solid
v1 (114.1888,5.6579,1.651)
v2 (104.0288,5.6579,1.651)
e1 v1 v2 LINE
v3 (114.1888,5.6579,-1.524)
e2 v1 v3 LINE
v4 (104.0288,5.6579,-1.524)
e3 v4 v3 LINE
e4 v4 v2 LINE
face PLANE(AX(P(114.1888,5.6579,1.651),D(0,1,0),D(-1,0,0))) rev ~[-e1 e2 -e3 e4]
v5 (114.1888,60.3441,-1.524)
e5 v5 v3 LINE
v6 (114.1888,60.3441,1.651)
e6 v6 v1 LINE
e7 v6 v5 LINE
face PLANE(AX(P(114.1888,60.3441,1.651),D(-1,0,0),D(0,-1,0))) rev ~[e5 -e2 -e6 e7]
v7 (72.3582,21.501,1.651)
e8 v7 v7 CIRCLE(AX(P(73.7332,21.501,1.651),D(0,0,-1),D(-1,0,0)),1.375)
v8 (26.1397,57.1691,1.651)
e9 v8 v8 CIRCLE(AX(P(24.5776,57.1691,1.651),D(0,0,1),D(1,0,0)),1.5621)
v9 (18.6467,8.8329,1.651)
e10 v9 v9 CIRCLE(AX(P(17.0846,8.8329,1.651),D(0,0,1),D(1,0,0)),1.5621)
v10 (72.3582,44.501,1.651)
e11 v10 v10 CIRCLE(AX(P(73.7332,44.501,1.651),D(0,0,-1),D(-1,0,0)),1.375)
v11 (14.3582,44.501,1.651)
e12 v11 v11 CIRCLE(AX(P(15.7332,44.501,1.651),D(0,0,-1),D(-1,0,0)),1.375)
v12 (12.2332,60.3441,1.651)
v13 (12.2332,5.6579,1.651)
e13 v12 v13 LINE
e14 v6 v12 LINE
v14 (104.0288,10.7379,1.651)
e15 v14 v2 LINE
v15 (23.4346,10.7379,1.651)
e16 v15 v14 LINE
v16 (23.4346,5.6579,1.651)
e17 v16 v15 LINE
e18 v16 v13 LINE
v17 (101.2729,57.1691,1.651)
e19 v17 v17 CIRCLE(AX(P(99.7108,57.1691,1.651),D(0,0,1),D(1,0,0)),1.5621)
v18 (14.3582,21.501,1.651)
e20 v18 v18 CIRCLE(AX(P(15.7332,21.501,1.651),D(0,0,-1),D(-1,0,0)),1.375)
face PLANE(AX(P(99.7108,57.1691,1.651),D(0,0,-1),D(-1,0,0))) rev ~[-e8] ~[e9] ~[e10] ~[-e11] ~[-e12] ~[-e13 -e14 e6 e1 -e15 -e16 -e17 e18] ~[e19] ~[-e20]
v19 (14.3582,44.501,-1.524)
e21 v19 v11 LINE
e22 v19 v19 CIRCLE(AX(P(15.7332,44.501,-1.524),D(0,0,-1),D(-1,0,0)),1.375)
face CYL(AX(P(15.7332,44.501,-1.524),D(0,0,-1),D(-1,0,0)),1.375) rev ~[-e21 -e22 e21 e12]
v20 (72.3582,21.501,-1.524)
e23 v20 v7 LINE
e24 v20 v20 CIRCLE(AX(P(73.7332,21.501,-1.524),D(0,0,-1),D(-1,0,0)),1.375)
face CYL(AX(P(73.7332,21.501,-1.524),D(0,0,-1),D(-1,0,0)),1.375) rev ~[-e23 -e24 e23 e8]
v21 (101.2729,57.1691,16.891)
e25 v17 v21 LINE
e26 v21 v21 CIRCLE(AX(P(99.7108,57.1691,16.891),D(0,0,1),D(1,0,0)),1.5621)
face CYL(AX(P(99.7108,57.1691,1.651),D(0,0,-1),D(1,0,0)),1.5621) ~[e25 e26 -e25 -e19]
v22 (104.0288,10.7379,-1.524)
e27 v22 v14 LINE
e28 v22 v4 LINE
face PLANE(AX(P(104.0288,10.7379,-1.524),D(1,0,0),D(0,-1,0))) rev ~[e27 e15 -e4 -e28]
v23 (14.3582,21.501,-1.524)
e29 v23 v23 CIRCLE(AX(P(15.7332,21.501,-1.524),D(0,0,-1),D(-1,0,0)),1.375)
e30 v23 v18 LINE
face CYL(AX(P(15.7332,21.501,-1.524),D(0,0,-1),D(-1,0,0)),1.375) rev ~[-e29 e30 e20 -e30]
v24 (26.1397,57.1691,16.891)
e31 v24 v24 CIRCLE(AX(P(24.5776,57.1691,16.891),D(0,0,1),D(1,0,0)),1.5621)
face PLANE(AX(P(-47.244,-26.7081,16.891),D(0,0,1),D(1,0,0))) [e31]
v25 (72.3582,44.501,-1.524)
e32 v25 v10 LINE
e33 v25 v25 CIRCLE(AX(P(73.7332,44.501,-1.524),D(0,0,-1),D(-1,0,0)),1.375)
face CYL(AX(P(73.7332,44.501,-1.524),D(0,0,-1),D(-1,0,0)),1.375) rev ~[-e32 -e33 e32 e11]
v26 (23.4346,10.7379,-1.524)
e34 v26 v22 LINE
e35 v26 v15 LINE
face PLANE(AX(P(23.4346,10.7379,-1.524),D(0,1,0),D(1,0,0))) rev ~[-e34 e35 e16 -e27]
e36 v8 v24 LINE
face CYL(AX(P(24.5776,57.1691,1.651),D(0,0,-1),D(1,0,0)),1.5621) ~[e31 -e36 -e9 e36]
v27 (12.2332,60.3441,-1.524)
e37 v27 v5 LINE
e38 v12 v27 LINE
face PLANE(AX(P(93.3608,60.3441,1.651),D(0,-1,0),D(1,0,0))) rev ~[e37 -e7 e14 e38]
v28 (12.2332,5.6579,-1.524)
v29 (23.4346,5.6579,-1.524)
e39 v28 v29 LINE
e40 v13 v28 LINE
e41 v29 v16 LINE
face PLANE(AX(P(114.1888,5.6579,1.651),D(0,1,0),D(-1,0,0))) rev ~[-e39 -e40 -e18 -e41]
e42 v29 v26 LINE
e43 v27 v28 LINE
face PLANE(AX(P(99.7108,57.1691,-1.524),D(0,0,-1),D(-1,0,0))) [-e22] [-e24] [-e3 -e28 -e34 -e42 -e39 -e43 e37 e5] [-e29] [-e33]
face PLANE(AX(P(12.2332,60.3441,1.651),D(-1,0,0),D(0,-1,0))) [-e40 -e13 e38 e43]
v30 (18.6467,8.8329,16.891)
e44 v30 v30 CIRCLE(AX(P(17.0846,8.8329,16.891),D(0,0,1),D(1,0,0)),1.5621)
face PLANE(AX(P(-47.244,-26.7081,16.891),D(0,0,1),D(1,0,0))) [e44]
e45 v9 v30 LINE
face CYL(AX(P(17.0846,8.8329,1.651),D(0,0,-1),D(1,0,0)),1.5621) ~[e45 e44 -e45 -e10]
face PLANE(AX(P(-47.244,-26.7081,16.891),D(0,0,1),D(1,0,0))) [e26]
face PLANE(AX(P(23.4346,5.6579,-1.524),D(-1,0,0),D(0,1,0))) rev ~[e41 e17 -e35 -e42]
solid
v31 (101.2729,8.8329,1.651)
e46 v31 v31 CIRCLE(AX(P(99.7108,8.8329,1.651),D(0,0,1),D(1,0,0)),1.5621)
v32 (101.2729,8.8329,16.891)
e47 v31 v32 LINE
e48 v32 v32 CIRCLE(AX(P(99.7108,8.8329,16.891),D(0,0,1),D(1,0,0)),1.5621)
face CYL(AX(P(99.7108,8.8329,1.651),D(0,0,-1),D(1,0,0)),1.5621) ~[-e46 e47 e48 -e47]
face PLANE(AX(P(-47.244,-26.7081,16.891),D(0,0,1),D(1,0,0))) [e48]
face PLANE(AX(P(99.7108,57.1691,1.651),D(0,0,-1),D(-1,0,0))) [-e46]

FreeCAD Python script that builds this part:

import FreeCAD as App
import Part
import Sketcher

V = App.Vector
Q = App.Units.Quantity

doc = App.newDocument("Part")
body = doc.addObject("PartDesign::Body", "Body")
body.AllowCompound = True

# Sketch on XY plane
sketch1 = doc.addObject("Sketcher::SketchObject", "Sketch")
body.addObject(sketch1)
sketch1.AttachmentSupport = (doc.XY_Plane, [""])
sketch1.MapMode = "FlatFace"
sketch1.AttachmentOffset = App.Placement(V(0, 0, 0.065 * 25.4), App.Rotation())
sketch1.addGeometry(Part.Circle(V(24.5776, 57.1691, 0), V(0, 0, 1), 1.5621), False)
sketch1.addGeometry(Part.Circle(V(17.0846, 8.8329, 0), V(0, 0, 1), 1.5621), False)
sketch1.addGeometry(Part.Circle(V(99.7108, 8.8329, 0), V(0, 0, 1), 1.5621), False)
sketch1.addGeometry(Part.Circle(V(99.7108, 57.1691, 0), V(0, 0, 1), 1.5621), False)
sketch1.addConstraint(Sketcher.Constraint("Equal", 0, 1))
sketch1.addConstraint(Sketcher.Constraint("Equal", 1, 2))
sketch1.addConstraint(Sketcher.Constraint("Equal", 2, 3))
sketch1.addConstraint(Sketcher.Constraint("Horizontal", 1, 3, 2, 3))
sketch1.addConstraint(Sketcher.Constraint("Horizontal", 0, 3, 3, 3))
sketch1.addConstraint(Sketcher.Constraint("Vertical", 2, 3, 3, 3))
sketch1.addConstraint(Sketcher.Constraint("Diameter", 0, Q("0.123 in")))
sketch1.addConstraint(Sketcher.Constraint("DistanceY", 1, 3, 0, 3, Q("1.903 in")))
sketch1.addConstraint(Sketcher.Constraint("DistanceX", 1, 3, 2, 3, Q("3.253 in")))
sketch1.addConstraint(Sketcher.Constraint("DistanceX", 0, 3, 2, 3, Q("2.958 in")))
sketch1.addConstraint(Sketcher.Constraint("DistanceX", -1, 1, 0, 3, 24.5776))
sketch1.addConstraint(Sketcher.Constraint("DistanceY", -1, 1, 0, 3, 57.169))
pad1 = doc.addObject("PartDesign::Pad", "Pad")
body.addObject(pad1)
pad1.Profile = sketch1
pad1.Length = Q("0.6 in")

# Sketch on XY plane
sketch2 = doc.addObject("Sketcher::SketchObject", "Sketch001")
body.addObject(sketch2)
sketch2.AttachmentSupport = (doc.XY_Plane, [""])
sketch2.MapMode = "FlatFace"
sketch2.AttachmentOffset = App.Placement(V(0, 0, 0.065 * 25.4), App.Rotation())
sketch2.addGeometry(Part.LineSegment(V(114.1888, 5.6579, 0), V(12.2332, 5.6579, 0)), False)
sketch2.addGeometry(Part.LineSegment(V(12.2332, 5.6579, 0), V(12.2332, 60.3441, 0)), False)
sketch2.addGeometry(Part.LineSegment(V(12.2332, 60.3441, 0), V(114.1888, 60.3441, 0)), False)
sketch2.addGeometry(Part.LineSegment(V(114.1888, 60.3441, 0), V(114.1888, 5.6579, 0)), False)
sketch2.addConstraint(Sketcher.Constraint("Coincident", 0, 2, 1, 1))
sketch2.addConstraint(Sketcher.Constraint("Coincident", 1, 2, 2, 1))
sketch2.addConstraint(Sketcher.Constraint("Coincident", 2, 2, 3, 1))
sketch2.addConstraint(Sketcher.Constraint("Coincident", 3, 2, 0, 1))
sketch2.addConstraint(Sketcher.Constraint("Horizontal", 0))
sketch2.addConstraint(Sketcher.Constraint("Vertical", 1))
sketch2.addConstraint(Sketcher.Constraint("Horizontal", 2))
sketch2.addConstraint(Sketcher.Constraint("Vertical", 3))
sketch2.addConstraint(Sketcher.Constraint("DistanceX", 0, 2, 0, 1, Q("4.014 in")))
sketch2.addConstraint(Sketcher.Constraint("DistanceY", 1, 1, 1, 2, Q("2.153 in")))
sketch2.addConstraint(Sketcher.Constraint("DistanceX", -1, 1, 0, 2, 12.2332))
sketch2.addConstraint(Sketcher.Constraint("DistanceY", -1, 1, 0, 2, 5.658))
pad2 = doc.addObject("PartDesign::Pad", "Pad001")
body.addObject(pad2)
pad2.Profile = sketch2
pad2.Length = Q("0.125 in")
pad2.Reversed = True

# Sketch on XY plane
sketch3 = doc.addObject("Sketcher::SketchObject", "Sketch002")
body.addObject(sketch3)
sketch3.AttachmentSupport = (doc.XY_Plane, [""])
sketch3.MapMode = "FlatFace"
sketch3.AttachmentOffset = App.Placement(V(0, 0, -0.06 * 25.4), App.Rotation())
sketch3.addGeometry(Part.Circle(V(15.7332, 44.501, 0), V(0, 0, 1), 1.375), False)
sketch3.addGeometry(Part.Circle(V(15.7332, 21.501, 0), V(0, 0, 1), 1.375), False)
sketch3.addGeometry(Part.Circle(V(73.7332, 44.501, 0), V(0, 0, 1), 1.375), False)
sketch3.addGeometry(Part.Circle(V(73.7332, 21.501, 0), V(0, 0, 1), 1.375), False)
sketch3.addConstraint(Sketcher.Constraint("Equal", 0, 1))
sketch3.addConstraint(Sketcher.Constraint("Equal", 1, 2))
sketch3.addConstraint(Sketcher.Constraint("Equal", 2, 3))
sketch3.addConstraint(Sketcher.Constraint("Horizontal", 0, 3, 2, 3))
sketch3.addConstraint(Sketcher.Constraint("Horizontal", 1, 3, 3, 3))
sketch3.addConstraint(Sketcher.Constraint("Vertical", 0, 3, 1, 3))
sketch3.addConstraint(Sketcher.Constraint("Vertical", 2, 3, 3, 3))
sketch3.addConstraint(Sketcher.Constraint("Diameter", 0, 2.75))
sketch3.addConstraint(Sketcher.Constraint("DistanceY", 1, 3, 0, 3, Q("0.9055 in")))
sketch3.addConstraint(Sketcher.Constraint("DistanceX", 0, 3, 2, 3, 58.0))
sketch3.addConstraint(Sketcher.Constraint("DistanceY", -1, 1, 0, 3, Q("1.752 in")))
sketch3.addConstraint(Sketcher.Constraint("DistanceX", -1, 1, 0, 3, 15.7332))
pocket1 = doc.addObject("PartDesign::Pocket", "Pocket")
body.addObject(pocket1)
pocket1.Profile = sketch3
pocket1.Type = "ThroughAll"
pocket1.Reversed = True

# Sketch on XY plane
sketch4 = doc.addObject("Sketcher::SketchObject", "Sketch003")
body.addObject(sketch4)
sketch4.AttachmentSupport = (doc.XY_Plane, [""])
sketch4.MapMode = "FlatFace"
sketch4.AttachmentOffset = App.Placement(V(0, 0, -0.06 * 25.4), App.Rotation())
sketch4.addGeometry(Part.LineSegment(V(104.0288, 10.7379, 0), V(104.0288, 5.6579, 0)), False)
sketch4.addGeometry(Part.LineSegment(V(104.0288, 5.6579, 0), V(23.4346, 5.6579, 0)), False)
sketch4.addGeometry(Part.LineSegment(V(23.4346, 5.6579, 0), V(23.4346, 10.7379, 0)), False)
sketch4.addGeometry(Part.LineSegment(V(23.4346, 10.7379, 0), V(104.0288, 10.7379, 0)), False)
sketch4.addConstraint(Sketcher.Constraint("Coincident", 0, 2, 1, 1))
sketch4.addConstraint(Sketcher.Constraint("Coincident", 1, 2, 2, 1))
sketch4.addConstraint(Sketcher.Constraint("Coincident", 2, 2, 3, 1))
sketch4.addConstraint(Sketcher.Constraint("Coincident", 3, 2, 0, 1))
sketch4.addConstraint(Sketcher.Constraint("Vertical", 0))
sketch4.addConstraint(Sketcher.Constraint("Horizontal", 1))
sketch4.addConstraint(Sketcher.Constraint("Vertical", 2))
sketch4.addConstraint(Sketcher.Constraint("Horizontal", 3))
sketch4.addConstraint(Sketcher.Constraint("DistanceY", 0, 2, 0, 1, Q("0.2 in")))
sketch4.addConstraint(Sketcher.Constraint("DistanceX", 1, 2, 1, 1, Q("3.173 in")))
sketch4.addConstraint(Sketcher.Constraint("DistanceX", -1, 1, 0, 2, 104.0288))
sketch4.addConstraint(Sketcher.Constraint("DistanceY", -1, 1, 0, 2, 5.658))
pocket2 = doc.addObject("PartDesign::Pocket", "Pocket001")
body.addObject(pocket2)
pocket2.Profile = sketch4
pocket2.Length = Q("0.125 in")
pocket2.Reversed = True

doc.recompute()
